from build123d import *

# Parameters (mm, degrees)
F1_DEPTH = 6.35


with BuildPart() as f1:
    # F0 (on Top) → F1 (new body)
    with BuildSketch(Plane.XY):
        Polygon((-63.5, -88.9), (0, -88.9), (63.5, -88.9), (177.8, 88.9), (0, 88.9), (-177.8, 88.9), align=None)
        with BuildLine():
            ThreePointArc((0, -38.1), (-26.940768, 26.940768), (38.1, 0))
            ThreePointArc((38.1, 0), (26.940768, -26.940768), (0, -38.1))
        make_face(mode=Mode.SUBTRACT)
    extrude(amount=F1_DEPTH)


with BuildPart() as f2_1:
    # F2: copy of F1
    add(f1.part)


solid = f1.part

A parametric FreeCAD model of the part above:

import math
import FreeCAD as App
import Part
import Sketcher
Q = App.Units.Quantity

doc = App.newDocument("Part")
params = doc.addObject("Spreadsheet::Sheet", "Params")
for row, (alias, value) in enumerate([
    ("sketch1_radius", "1.5 in"),
    ("sketch1_width", "5 in"),
    ("sketch1_width2", "14 in"),
    ("pad1_length", "0.25 in"),
], start=1):
    params.set(f"A{row}", alias)
    params.set(f"B{row}", "=" + value)
    params.setAlias(f"B{row}", alias)

body = doc.addObject("PartDesign::Body", "Body")

# Sketch on XY plane
sketch1 = body.newObject("Sketcher::SketchObject", "Sketch")
sketch1.AttachmentSupport = (doc.getObject("XY_Plane"), [""])
sketch1.MapMode = "FlatFace"
sketch1.addGeometry(Part.LineSegment(App.Vector(-64, -89, 0), App.Vector(64, -89, 0)), False)
sketch1.addGeometry(Part.LineSegment(App.Vector(64, -89, 0), App.Vector(178, 89, 0)), False)
sketch1.addGeometry(Part.LineSegment(App.Vector(178, 89, 0), App.Vector(-178, 89, 0)), False)
sketch1.addGeometry(Part.LineSegment(App.Vector(-178, 89, 0), App.Vector(-64, -89, 0)), False)
sketch1.addGeometry(Part.ArcOfCircle(Part.Circle(App.Vector(0, 0, 0), App.Vector(0, 0, 1), 38), math.radians(-90), math.radians(0)), False)
sketch1.addGeometry(Part.ArcOfCircle(Part.Circle(App.Vector(0, 0, 0), App.Vector(0, 0, 1), 38), math.radians(0), math.radians(270)), False)
sketch1.addConstraint(Sketcher.Constraint("Coincident", 0, 2, 1, 1))
sketch1.addConstraint(Sketcher.Constraint("Coincident", 1, 2, 2, 1))
sketch1.addConstraint(Sketcher.Constraint("Coincident", 2, 2, 3, 1))
sketch1.addConstraint(Sketcher.Constraint("Coincident", 3, 2, 0, 1))
sketch1.addConstraint(Sketcher.Constraint("Tangent", 4, 1, 5, 2))
sketch1.addConstraint(Sketcher.Constraint("Coincident", 5, 1, 4, 2))
sketch1.addConstraint(Sketcher.Constraint("Horizontal", 0))
sketch1.addConstraint(Sketcher.Constraint("Horizontal", 2))
sketch1.addConstraint(Sketcher.Constraint("Coincident", 4, 3, -1, 1))
sketch1.addConstraint(Sketcher.Constraint("PointOnObject", 4, 1, -2))
sketch1.addConstraint(Sketcher.Constraint("PointOnObject", 5, 1, -1))
sketch1.addConstraint(Sketcher.Constraint("Equal", 1, 3))
sketch1.addConstraint(Sketcher.Constraint("Radius", 4, Q("1.5 in")))
sketch1.addConstraint(Sketcher.Constraint("DistanceX", 0, 1, 0, 2, Q("5 in")))
sketch1.addConstraint(Sketcher.Constraint("DistanceX", 2, 2, 2, 1, Q("14 in")))
sketch1.addConstraint(Sketcher.Constraint("DistanceX", -1, 1, 1, 2, Q("7 in")))
sketch1.addConstraint(Sketcher.Constraint("DistanceY", 0, 2, 1, 2, Q("7 in")))
sketch1.addConstraint(Sketcher.Constraint("DistanceY", 0, 2, 4, 1, Q("2 in")))
sketch1.setExpression("Constraints[12]", "Params.sketch1_radius")
sketch1.setExpression("Constraints[13]", "Params.sketch1_width")
sketch1.setExpression("Constraints[14]", "Params.sketch1_width2")
pad1 = body.newObject("PartDesign::Pad", "Pad")
pad1.Profile = sketch1
pad1.setExpression("Length", "Params.pad1_length")
body2 = doc.addObject("PartDesign::Body", "Body001")
doc.recompute()

body2.BaseFeature = body
doc.recompute()
body.Visibility = False

doc.recompute()
